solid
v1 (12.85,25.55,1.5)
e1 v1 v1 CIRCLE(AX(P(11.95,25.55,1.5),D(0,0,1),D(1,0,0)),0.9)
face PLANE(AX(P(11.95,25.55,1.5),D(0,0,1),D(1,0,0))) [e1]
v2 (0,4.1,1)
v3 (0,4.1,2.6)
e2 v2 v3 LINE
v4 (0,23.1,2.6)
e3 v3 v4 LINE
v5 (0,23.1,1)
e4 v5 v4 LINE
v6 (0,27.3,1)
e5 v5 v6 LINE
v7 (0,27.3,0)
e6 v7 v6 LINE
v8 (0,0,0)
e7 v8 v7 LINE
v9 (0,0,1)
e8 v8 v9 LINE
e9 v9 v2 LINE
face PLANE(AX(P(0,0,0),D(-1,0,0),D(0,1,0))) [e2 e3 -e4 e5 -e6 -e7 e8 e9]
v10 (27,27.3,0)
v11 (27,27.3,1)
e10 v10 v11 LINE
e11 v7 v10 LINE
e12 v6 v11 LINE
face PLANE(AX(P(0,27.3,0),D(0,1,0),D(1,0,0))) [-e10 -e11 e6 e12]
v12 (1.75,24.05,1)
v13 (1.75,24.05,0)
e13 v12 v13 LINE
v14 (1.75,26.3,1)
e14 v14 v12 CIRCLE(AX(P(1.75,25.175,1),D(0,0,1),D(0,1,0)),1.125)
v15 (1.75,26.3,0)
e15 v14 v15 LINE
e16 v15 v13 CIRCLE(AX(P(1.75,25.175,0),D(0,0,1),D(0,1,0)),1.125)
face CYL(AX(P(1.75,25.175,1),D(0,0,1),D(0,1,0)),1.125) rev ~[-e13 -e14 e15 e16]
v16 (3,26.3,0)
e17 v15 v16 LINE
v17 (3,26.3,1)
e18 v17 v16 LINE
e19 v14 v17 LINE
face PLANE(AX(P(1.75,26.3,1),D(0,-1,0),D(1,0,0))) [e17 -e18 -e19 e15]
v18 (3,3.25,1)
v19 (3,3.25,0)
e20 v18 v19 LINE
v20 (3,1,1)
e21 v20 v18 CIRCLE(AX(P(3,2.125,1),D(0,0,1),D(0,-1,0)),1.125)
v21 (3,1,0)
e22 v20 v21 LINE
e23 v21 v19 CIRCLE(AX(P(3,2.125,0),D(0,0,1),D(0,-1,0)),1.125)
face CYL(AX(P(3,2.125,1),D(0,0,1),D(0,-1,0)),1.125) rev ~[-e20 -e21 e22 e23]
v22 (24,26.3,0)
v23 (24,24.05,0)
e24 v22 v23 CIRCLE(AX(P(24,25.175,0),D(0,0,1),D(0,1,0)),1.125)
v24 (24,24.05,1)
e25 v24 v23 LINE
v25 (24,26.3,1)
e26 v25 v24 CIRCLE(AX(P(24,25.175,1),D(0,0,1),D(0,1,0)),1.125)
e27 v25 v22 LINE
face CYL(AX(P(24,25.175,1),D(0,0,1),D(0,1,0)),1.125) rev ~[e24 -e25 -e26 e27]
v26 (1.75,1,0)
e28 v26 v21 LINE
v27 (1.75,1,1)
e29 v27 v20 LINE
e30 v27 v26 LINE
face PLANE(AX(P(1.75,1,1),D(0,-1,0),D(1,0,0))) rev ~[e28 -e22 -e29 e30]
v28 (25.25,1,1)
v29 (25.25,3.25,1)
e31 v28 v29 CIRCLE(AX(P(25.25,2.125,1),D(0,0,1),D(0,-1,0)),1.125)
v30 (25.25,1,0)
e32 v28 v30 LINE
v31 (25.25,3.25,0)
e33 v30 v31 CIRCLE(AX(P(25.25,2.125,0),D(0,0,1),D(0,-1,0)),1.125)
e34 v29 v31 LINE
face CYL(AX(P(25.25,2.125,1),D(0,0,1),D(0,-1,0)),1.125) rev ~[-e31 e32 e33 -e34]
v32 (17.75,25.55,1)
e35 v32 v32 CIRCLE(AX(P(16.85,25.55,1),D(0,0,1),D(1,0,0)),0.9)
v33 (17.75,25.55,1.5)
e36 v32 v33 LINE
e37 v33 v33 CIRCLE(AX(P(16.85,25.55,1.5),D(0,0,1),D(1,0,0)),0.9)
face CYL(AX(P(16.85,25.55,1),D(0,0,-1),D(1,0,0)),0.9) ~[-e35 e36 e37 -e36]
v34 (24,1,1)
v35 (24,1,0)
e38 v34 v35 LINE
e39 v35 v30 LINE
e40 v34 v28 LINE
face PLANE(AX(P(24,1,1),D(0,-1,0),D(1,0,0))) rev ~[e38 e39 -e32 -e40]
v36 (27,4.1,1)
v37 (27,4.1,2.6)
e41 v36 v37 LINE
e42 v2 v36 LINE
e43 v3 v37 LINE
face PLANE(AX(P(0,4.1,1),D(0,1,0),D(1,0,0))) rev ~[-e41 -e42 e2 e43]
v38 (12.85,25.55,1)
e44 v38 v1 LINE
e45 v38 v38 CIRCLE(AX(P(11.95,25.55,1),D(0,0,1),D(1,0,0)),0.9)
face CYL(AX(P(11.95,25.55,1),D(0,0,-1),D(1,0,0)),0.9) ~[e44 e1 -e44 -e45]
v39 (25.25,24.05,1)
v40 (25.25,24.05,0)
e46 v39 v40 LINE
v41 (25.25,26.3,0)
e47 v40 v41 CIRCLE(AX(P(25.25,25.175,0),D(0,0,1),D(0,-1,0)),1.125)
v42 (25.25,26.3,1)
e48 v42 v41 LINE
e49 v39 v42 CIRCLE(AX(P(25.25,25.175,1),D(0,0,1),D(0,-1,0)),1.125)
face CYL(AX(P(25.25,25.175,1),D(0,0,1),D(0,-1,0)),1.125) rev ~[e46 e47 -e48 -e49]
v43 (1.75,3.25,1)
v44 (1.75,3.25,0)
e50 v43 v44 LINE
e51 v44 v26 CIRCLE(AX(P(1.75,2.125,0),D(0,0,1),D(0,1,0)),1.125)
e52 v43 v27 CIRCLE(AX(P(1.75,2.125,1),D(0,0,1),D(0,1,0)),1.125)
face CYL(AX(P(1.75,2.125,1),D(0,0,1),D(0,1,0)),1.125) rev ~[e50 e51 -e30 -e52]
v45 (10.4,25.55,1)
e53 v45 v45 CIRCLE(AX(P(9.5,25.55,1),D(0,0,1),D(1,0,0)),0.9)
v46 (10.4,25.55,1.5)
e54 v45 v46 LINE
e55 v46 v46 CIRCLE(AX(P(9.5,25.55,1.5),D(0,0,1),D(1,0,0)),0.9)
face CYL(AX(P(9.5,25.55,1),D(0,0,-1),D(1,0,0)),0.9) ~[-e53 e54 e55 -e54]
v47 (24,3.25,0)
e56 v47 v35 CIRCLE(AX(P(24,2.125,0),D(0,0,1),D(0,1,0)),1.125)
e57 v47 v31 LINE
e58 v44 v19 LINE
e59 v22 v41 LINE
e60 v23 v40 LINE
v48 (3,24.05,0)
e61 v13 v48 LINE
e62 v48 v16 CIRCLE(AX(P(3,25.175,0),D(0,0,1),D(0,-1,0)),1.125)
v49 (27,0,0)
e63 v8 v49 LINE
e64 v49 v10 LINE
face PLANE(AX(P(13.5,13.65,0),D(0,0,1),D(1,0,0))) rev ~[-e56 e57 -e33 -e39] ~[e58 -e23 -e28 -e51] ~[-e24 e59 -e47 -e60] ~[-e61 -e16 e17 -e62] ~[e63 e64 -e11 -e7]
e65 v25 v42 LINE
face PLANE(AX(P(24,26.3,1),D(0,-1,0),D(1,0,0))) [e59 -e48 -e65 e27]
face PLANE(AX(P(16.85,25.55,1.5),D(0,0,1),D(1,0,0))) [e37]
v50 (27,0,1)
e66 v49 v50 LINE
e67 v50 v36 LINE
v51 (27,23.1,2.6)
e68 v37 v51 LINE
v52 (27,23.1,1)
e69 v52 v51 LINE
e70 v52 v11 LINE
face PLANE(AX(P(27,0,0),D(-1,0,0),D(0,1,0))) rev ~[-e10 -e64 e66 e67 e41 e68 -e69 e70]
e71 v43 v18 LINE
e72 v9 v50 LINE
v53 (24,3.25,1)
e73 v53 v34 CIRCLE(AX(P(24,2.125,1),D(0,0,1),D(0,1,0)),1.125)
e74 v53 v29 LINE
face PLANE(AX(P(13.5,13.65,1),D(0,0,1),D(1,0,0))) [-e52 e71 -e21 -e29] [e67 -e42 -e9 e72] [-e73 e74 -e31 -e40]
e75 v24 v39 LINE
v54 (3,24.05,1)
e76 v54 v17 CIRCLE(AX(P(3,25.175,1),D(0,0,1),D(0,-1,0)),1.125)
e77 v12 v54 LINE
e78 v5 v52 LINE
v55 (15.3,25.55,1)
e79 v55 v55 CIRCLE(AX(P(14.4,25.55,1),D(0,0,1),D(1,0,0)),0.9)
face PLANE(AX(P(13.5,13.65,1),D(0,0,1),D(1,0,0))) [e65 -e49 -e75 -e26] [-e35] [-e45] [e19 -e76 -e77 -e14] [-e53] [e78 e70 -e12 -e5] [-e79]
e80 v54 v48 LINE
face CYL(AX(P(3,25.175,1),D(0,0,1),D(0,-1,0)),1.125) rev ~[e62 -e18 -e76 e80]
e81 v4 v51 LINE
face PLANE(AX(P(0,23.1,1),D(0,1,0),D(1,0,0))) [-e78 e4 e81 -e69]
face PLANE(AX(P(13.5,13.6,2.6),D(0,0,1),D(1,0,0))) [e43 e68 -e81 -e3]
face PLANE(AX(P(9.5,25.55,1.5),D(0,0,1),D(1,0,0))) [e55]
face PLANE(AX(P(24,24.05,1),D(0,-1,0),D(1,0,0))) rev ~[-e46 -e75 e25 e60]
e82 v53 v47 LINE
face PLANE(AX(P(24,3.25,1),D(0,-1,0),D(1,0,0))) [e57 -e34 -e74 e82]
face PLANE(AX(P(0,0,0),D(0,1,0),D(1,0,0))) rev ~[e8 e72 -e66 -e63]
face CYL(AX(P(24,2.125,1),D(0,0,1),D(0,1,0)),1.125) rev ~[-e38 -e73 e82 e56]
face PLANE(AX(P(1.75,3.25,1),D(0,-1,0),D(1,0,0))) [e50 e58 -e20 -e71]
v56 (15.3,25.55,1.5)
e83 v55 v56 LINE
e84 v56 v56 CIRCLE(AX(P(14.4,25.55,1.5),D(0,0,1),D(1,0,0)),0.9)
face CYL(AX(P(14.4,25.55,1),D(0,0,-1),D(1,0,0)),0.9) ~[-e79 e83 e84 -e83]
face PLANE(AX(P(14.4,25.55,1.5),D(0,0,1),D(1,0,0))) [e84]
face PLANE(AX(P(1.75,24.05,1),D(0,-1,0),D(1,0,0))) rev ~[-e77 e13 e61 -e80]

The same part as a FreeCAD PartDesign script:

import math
import FreeCAD as App
import Part
import Sketcher
from FreeCAD import Vector
Q = App.Units.Quantity


def add_polygon(sketch, points):
    """Adds a closed chain of lines whose ends are joined by coincident constraints."""
    first, n = sketch.GeometryCount, len(points)
    for a, b in zip(points, points[1:] + points[:1]):
        sketch.addGeometry(Part.LineSegment(App.Vector(*a, 0), App.Vector(*b, 0)), False)
    for i in range(n):
        sketch.addConstraint(Sketcher.Constraint("Coincident", first + i, 2, first + (i + 1) % n, 1))

doc = App.newDocument("Part")
body = doc.addObject("PartDesign::Body", "Body")

# Sketch on XY plane
sketch1 = doc.addObject("Sketcher::SketchObject", "Sketch")
body.addObject(sketch1)
sketch1.AttachmentSupport = (doc.XY_Plane, [""])
sketch1.MapMode = "FlatFace"
add_polygon(sketch1, [(0, 27), (0, 0), (27, 0), (27, 27)])  # lines 0-3
sketch1.addConstraint([
    Sketcher.Constraint("Vertical", 0),
    Sketcher.Constraint("Horizontal", 1),
    Sketcher.Constraint("Vertical", 2),
    Sketcher.Constraint("Horizontal", 3),
    Sketcher.Constraint("Coincident", 0, 2, -1, 1),
    Sketcher.Constraint("DistanceX", 1, 1, 1, 2, Q("27 mm")),
    Sketcher.Constraint("DistanceY", 0, 2, 0, 1, Q("27.3 mm")),
])
pad1 = doc.addObject("PartDesign::Pad", "Pad")
body.addObject(pad1)
pad1.Profile = sketch1
pad1.Length = 1

# Sketch on XY plane
sketch2 = doc.addObject("Sketcher::SketchObject", "Sketch001")
body.addObject(sketch2)
sketch2.AttachmentSupport = (doc.XY_Plane, [""])
sketch2.MapMode = "FlatFace"
sketch2.AttachmentOffset = App.Placement(Vector(0, 0, 1), App.Rotation())
sketch2.addGeometry([
    Part.ArcOfCircle(Part.Circle(Vector(1.8, 25.2, 0), Vector(0, 0, 1), 1.1), math.radians(90), math.radians(270)),  # 0
    Part.LineSegment(Vector(1.8, 24.1, 0), Vector(3, 24.1, 0)),  # 1
    Part.ArcOfCircle(Part.Circle(Vector(3, 25.2, 0), Vector(0, 0, 1), 1.1), math.radians(-90), math.radians(90)),  # 2
    Part.LineSegment(Vector(3, 26.3, 0), Vector(1.8, 26.3, 0)),  # 3
    Part.ArcOfCircle(Part.Circle(Vector(24, 25.2, 0), Vector(0, 0, 1), 1.1), math.radians(90), math.radians(270)),  # 4
    Part.LineSegment(Vector(24, 24.1, 0), Vector(25.2, 24.1, 0)),  # 5
    Part.ArcOfCircle(Part.Circle(Vector(25.2, 25.2, 0), Vector(0, 0, 1), 1.1), math.radians(-90), math.radians(90)),  # 6
    Part.LineSegment(Vector(25.2, 26.3, 0), Vector(24, 26.3, 0)),  # 7
    Part.ArcOfCircle(Part.Circle(Vector(1.8, 2.1, 0), Vector(0, 0, 1), 1.1), math.radians(90), math.radians(270)),  # 8
    Part.LineSegment(Vector(1.8, 1, 0), Vector(3, 1, 0)),  # 9
    Part.ArcOfCircle(Part.Circle(Vector(3, 2.1, 0), Vector(0, 0, 1), 1.1), math.radians(-90), math.radians(90)),  # 10
    Part.LineSegment(Vector(3, 3.2, 0), Vector(1.8, 3.2, 0)),  # 11
    Part.ArcOfCircle(Part.Circle(Vector(24, 2.1, 0), Vector(0, 0, 1), 1.1), math.radians(90), math.radians(270)),  # 12
    Part.LineSegment(Vector(24, 1, 0), Vector(25.2, 1, 0)),  # 13
    Part.ArcOfCircle(Part.Circle(Vector(25.2, 2.1, 0), Vector(0, 0, 1), 1.1), math.radians(-90), math.radians(90)),  # 14
    Part.LineSegment(Vector(25.2, 3.2, 0), Vector(24, 3.2, 0)),  # 15
], False)
sketch2.addConstraint([
    Sketcher.Constraint("Tangent", 0, 2, 1, 1),
    Sketcher.Constraint("Tangent", 1, 2, 2, 1),
    Sketcher.Constraint("Tangent", 2, 2, 3, 1),
    Sketcher.Constraint("Tangent", 3, 2, 0, 1),
    Sketcher.Constraint("Tangent", 4, 2, 5, 1),
    Sketcher.Constraint("Tangent", 5, 2, 6, 1),
    Sketcher.Constraint("Tangent", 6, 2, 7, 1),
    Sketcher.Constraint("Tangent", 7, 2, 4, 1),
    Sketcher.Constraint("Tangent", 8, 2, 9, 1),
    Sketcher.Constraint("Tangent", 9, 2, 10, 1),
    Sketcher.Constraint("Tangent", 10, 2, 11, 1),
    Sketcher.Constraint("Tangent", 11, 2, 8, 1),
    Sketcher.Constraint("Tangent", 12, 2, 13, 1),
    Sketcher.Constraint("Tangent", 13, 2, 14, 1),
    Sketcher.Constraint("Tangent", 14, 2, 15, 1),
    Sketcher.Constraint("Tangent", 15, 2, 12, 1),
    Sketcher.Constraint("Horizontal", 1),
    Sketcher.Constraint("Horizontal", 3),
    Sketcher.Constraint("Horizontal", 5),
    Sketcher.Constraint("Horizontal", 7),
    Sketcher.Constraint("Horizontal", 9),
    Sketcher.Constraint("Horizontal", 11),
    Sketcher.Constraint("Horizontal", 13),
    Sketcher.Constraint("Horizontal", 15),
    Sketcher.Constraint("Equal", 2, 4),
    Sketcher.Constraint("Equal", 6, 8),
    Sketcher.Constraint("Equal", 10, 12),
    Sketcher.Constraint("Horizontal", 2, 3, 4, 3),
    Sketcher.Constraint("Horizontal", 10, 3, 12, 3),
    Sketcher.Constraint("Vertical", 0, 3, 8, 3),
    Sketcher.Constraint("Vertical", 2, 3, 10, 3),
    Sketcher.Constraint("Vertical", 4, 3, 12, 3),
    Sketcher.Constraint("Vertical", 6, 3, 14, 3),
    Sketcher.Constraint("Equal", 3, 5),
    Sketcher.Constraint("DistanceX", -1, 1, 2, 3, Q("3 mm")),
    Sketcher.Constraint("DistanceX", -1, 1, 4, 3, Q("24 mm")),
    Sketcher.Constraint("DistanceY", -1, 1, 8, 2, Q("1 mm")),
    Sketcher.Constraint("Radius", 0, Q("1.125 mm")),
    Sketcher.Constraint("DistanceX", 1, 1, 1, 2, Q("1.25 mm")),
    Sketcher.Constraint("DistanceY", -1, 1, 2, 2, Q("26.3 mm")),
])
pocket1 = doc.addObject("PartDesign::Pocket", "Pocket")
body.addObject(pocket1)
pocket1.Profile = sketch2
pocket1.Type = "ThroughAll"

# Sketch on XY plane
sketch3 = doc.addObject("Sketcher::SketchObject", "Sketch002")
body.addObject(sketch3)
sketch3.AttachmentSupport = (doc.XY_Plane, [""])
sketch3.MapMode = "FlatFace"
sketch3.AttachmentOffset = App.Placement(Vector(0, 0, 1), App.Rotation())
add_polygon(sketch3, [(0, 23), (0, 4), (27, 4), (27, 23)])  # lines 0-3
sketch3.addConstraint([
    Sketcher.Constraint("Vertical", 0),
    Sketcher.Constraint("Horizontal", 1),
    Sketcher.Constraint("Vertical", 2),
    Sketcher.Constraint("Horizontal", 3),
    Sketcher.Constraint("PointOnObject", 0, 2, -2),
    Sketcher.Constraint("DistanceX", 1, 1, 1, 2, Q("27 mm")),
    Sketcher.Constraint("DistanceY", 0, 2, 0, 1, Q("19 mm")),
    Sketcher.Constraint("DistanceY", -1, 1, 0, 2, Q("4.1 mm")),
])
pad2 = doc.addObject("PartDesign::Pad", "Pad001")
body.addObject(pad2)
pad2.Profile = sketch3
pad2.Length = 1.6

# Sketch on XY plane
sketch4 = doc.addObject("Sketcher::SketchObject", "Sketch003")
body.addObject(sketch4)
sketch4.AttachmentSupport = (doc.XY_Plane, [""])
sketch4.MapMode = "FlatFace"
sketch4.AttachmentOffset = App.Placement(Vector(0, 0, 1), App.Rotation())
sketch4.addGeometry([
    Part.Circle(Vector(9.5, 25.6, 0), Vector(0, 0, 1), 0.9),
    Part.Circle(Vector(11.9, 25.6, 0), Vector(0, 0, 1), 0.9),
    Part.Circle(Vector(14.4, 25.6, 0), Vector(0, 0, 1), 0.9),
    Part.Circle(Vector(16.9, 25.6, 0), Vector(0, 0, 1), 0.9),
], False)
sketch4.addConstraint([
    Sketcher.Constraint("Equal", 0, 1),
    Sketcher.Constraint("Equal", 1, 2),
    Sketcher.Constraint("Equal", 2, 3),
    Sketcher.Constraint("Horizontal", 0, 3, 1, 3),
    Sketcher.Constraint("Horizontal", 1, 3, 2, 3),
    Sketcher.Constraint("Horizontal", 2, 3, 3, 3),
    Sketcher.Constraint("Diameter", 0, Q("1.8 mm")),
    Sketcher.Constraint("DistanceX", -1, 1, 0, 3, Q("9.5 mm")),
    Sketcher.Constraint("DistanceX", -1, 1, 2, 3, Q("14.4 mm")),
    Sketcher.Constraint("DistanceX", 1, 3, 3, 3, Q("4.9 mm")),
    Sketcher.Constraint("DistanceY", -1, 1, 0, 3, Q("25.55 mm")),
    Sketcher.Constraint("DistanceX", -1, 1, 1, 3, Q("11.95 mm")),
])
pad3 = doc.addObject("PartDesign::Pad", "Pad002")
body.addObject(pad3)
pad3.Profile = sketch4
pad3.Length = 0.5

doc.recompute()
